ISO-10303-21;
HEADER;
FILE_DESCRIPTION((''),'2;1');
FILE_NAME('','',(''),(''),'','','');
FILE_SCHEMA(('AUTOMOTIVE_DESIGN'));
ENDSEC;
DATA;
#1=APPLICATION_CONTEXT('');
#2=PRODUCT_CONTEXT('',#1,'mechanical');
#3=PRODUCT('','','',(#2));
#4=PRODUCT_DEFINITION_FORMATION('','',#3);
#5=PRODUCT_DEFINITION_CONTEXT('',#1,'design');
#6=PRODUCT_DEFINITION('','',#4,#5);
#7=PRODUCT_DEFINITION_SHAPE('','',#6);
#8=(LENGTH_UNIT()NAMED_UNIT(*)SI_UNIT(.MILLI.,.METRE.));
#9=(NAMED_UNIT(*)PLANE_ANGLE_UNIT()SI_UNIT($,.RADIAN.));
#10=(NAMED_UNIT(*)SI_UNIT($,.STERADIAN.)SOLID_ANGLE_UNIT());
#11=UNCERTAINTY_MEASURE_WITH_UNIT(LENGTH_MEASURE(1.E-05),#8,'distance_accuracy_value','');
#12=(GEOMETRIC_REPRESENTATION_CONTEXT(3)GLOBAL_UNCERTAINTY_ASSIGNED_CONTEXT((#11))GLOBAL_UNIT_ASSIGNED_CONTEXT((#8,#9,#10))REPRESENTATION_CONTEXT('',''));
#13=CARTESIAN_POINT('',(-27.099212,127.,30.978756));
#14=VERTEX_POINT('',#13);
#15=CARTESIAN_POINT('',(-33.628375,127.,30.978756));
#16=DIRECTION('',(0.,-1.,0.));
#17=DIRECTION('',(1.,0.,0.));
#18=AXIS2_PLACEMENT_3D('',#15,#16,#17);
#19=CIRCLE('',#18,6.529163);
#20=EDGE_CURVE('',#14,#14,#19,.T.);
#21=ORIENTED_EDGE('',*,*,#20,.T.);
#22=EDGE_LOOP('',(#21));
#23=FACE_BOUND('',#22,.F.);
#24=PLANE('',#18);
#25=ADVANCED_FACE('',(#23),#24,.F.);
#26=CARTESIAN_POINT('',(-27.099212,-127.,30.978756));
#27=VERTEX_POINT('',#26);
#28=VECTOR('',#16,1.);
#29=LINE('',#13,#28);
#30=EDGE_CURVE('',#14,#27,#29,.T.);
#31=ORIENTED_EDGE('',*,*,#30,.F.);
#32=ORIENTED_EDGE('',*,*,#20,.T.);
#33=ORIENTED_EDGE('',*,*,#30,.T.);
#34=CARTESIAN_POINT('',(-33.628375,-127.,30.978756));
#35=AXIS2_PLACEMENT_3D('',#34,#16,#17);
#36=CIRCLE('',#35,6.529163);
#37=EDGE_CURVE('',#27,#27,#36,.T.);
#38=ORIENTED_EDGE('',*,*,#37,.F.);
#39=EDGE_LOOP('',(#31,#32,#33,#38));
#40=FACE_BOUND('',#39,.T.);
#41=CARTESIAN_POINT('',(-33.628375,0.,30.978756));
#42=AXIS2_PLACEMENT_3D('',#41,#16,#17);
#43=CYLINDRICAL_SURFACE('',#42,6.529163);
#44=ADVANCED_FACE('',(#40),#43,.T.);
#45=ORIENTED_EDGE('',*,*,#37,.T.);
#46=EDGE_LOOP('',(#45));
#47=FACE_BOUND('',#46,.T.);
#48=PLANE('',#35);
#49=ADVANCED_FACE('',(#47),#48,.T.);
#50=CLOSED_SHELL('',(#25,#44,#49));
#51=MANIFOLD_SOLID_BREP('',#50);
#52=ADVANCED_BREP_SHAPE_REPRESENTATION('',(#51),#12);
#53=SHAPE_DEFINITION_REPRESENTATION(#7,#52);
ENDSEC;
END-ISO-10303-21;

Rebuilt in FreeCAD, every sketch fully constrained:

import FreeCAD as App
import Part
import Sketcher
from FreeCAD import Vector
Q = App.Units.Quantity

doc = App.newDocument("Part")
params = doc.addObject("Spreadsheet::Sheet", "Params")
for row, (alias, value) in enumerate([
    ("pad1_length", "10 in"),
    ("sketch2_diameter", "0.5 in"),
    ("pad2_length", "10 in"),
    ("pad3_length", "10 in"),
], start=1):
    params.set(f"A{row}", alias)
    params.set(f"B{row}", "=" + value)
    params.setAlias(f"B{row}", alias)

body = doc.addObject("PartDesign::Body", "Body")

sketch1 = body.newObject("Sketcher::SketchObject", "Sketch")
sketch1.AttachmentSupport = (doc.getObject("XY_Plane"), [""])
sketch1.MapMode = "FlatFace"
sketch1.addGeometry(Part.Circle(Vector(-30.377836, 35.495364, 0), Vector(0, 0, 1), 13.356882), False)
sketch1.addConstraint([
    Sketcher.Constraint("Diameter", 0, 26.713763),
    Sketcher.Constraint("DistanceX", 0, 3, -1, 1, 30.377836),
    Sketcher.Constraint("DistanceY", -1, 1, 0, 3, 35.495364),
])
pad1 = body.newObject("PartDesign::Pad", "Pad")
pad1.Profile = sketch1
pad1.setExpression("Length", "Params.pad1_length")
pad1.Midplane = True
body2 = doc.addObject("PartDesign::Body", "Body001")

sketch2 = body2.newObject("Sketcher::SketchObject", "Sketch001")
sketch2.AttachmentSupport = (doc.getObject("XY_Plane001"), [""])
sketch2.MapMode = "FlatFace"
sketch2.addGeometry(Part.Circle(Vector(-33.728442, 38.471376, 0), Vector(0, 0, 1), 6.35), False)
sketch2.addConstraint([
    Sketcher.Constraint("Diameter", 0, Q("0.5 in")),
    Sketcher.Constraint("DistanceX", 0, 3, -1, 1, 33.728442),
    Sketcher.Constraint("DistanceY", -1, 1, 0, 3, 38.471376),
])
sketch2.setExpression("Constraints[0]", "Params.sketch2_diameter")
pad2 = body2.newObject("PartDesign::Pad", "Pad001")
pad2.Profile = sketch2
pad2.setExpression("Length", "Params.pad2_length")
pad2.Midplane = True
body3 = doc.addObject("PartDesign::Body", "Body002")

sketch3 = body3.newObject("Sketcher::SketchObject", "Sketch002")
sketch3.AttachmentSupport = (doc.getObject("XZ_Plane002"), [""])
sketch3.MapMode = "FlatFace"
sketch3.addGeometry(Part.Circle(Vector(-33.628375, 30.978756, 0), Vector(0, 0, 1), 6.529163), False)
sketch3.addConstraint([
    Sketcher.Constraint("Diameter", 0, 13.058326),
    Sketcher.Constraint("DistanceX", 0, 3, -1, 1, 33.628375),
    Sketcher.Constraint("DistanceY", -1, 1, 0, 3, 30.978756),
])
pad3 = body3.newObject("PartDesign::Pad", "Pad002")
pad3.Profile = sketch3
pad3.setExpression("Length", "Params.pad3_length")
pad3.Midplane = True
body.Visibility = False
body2.Visibility = False

doc.recompute()
